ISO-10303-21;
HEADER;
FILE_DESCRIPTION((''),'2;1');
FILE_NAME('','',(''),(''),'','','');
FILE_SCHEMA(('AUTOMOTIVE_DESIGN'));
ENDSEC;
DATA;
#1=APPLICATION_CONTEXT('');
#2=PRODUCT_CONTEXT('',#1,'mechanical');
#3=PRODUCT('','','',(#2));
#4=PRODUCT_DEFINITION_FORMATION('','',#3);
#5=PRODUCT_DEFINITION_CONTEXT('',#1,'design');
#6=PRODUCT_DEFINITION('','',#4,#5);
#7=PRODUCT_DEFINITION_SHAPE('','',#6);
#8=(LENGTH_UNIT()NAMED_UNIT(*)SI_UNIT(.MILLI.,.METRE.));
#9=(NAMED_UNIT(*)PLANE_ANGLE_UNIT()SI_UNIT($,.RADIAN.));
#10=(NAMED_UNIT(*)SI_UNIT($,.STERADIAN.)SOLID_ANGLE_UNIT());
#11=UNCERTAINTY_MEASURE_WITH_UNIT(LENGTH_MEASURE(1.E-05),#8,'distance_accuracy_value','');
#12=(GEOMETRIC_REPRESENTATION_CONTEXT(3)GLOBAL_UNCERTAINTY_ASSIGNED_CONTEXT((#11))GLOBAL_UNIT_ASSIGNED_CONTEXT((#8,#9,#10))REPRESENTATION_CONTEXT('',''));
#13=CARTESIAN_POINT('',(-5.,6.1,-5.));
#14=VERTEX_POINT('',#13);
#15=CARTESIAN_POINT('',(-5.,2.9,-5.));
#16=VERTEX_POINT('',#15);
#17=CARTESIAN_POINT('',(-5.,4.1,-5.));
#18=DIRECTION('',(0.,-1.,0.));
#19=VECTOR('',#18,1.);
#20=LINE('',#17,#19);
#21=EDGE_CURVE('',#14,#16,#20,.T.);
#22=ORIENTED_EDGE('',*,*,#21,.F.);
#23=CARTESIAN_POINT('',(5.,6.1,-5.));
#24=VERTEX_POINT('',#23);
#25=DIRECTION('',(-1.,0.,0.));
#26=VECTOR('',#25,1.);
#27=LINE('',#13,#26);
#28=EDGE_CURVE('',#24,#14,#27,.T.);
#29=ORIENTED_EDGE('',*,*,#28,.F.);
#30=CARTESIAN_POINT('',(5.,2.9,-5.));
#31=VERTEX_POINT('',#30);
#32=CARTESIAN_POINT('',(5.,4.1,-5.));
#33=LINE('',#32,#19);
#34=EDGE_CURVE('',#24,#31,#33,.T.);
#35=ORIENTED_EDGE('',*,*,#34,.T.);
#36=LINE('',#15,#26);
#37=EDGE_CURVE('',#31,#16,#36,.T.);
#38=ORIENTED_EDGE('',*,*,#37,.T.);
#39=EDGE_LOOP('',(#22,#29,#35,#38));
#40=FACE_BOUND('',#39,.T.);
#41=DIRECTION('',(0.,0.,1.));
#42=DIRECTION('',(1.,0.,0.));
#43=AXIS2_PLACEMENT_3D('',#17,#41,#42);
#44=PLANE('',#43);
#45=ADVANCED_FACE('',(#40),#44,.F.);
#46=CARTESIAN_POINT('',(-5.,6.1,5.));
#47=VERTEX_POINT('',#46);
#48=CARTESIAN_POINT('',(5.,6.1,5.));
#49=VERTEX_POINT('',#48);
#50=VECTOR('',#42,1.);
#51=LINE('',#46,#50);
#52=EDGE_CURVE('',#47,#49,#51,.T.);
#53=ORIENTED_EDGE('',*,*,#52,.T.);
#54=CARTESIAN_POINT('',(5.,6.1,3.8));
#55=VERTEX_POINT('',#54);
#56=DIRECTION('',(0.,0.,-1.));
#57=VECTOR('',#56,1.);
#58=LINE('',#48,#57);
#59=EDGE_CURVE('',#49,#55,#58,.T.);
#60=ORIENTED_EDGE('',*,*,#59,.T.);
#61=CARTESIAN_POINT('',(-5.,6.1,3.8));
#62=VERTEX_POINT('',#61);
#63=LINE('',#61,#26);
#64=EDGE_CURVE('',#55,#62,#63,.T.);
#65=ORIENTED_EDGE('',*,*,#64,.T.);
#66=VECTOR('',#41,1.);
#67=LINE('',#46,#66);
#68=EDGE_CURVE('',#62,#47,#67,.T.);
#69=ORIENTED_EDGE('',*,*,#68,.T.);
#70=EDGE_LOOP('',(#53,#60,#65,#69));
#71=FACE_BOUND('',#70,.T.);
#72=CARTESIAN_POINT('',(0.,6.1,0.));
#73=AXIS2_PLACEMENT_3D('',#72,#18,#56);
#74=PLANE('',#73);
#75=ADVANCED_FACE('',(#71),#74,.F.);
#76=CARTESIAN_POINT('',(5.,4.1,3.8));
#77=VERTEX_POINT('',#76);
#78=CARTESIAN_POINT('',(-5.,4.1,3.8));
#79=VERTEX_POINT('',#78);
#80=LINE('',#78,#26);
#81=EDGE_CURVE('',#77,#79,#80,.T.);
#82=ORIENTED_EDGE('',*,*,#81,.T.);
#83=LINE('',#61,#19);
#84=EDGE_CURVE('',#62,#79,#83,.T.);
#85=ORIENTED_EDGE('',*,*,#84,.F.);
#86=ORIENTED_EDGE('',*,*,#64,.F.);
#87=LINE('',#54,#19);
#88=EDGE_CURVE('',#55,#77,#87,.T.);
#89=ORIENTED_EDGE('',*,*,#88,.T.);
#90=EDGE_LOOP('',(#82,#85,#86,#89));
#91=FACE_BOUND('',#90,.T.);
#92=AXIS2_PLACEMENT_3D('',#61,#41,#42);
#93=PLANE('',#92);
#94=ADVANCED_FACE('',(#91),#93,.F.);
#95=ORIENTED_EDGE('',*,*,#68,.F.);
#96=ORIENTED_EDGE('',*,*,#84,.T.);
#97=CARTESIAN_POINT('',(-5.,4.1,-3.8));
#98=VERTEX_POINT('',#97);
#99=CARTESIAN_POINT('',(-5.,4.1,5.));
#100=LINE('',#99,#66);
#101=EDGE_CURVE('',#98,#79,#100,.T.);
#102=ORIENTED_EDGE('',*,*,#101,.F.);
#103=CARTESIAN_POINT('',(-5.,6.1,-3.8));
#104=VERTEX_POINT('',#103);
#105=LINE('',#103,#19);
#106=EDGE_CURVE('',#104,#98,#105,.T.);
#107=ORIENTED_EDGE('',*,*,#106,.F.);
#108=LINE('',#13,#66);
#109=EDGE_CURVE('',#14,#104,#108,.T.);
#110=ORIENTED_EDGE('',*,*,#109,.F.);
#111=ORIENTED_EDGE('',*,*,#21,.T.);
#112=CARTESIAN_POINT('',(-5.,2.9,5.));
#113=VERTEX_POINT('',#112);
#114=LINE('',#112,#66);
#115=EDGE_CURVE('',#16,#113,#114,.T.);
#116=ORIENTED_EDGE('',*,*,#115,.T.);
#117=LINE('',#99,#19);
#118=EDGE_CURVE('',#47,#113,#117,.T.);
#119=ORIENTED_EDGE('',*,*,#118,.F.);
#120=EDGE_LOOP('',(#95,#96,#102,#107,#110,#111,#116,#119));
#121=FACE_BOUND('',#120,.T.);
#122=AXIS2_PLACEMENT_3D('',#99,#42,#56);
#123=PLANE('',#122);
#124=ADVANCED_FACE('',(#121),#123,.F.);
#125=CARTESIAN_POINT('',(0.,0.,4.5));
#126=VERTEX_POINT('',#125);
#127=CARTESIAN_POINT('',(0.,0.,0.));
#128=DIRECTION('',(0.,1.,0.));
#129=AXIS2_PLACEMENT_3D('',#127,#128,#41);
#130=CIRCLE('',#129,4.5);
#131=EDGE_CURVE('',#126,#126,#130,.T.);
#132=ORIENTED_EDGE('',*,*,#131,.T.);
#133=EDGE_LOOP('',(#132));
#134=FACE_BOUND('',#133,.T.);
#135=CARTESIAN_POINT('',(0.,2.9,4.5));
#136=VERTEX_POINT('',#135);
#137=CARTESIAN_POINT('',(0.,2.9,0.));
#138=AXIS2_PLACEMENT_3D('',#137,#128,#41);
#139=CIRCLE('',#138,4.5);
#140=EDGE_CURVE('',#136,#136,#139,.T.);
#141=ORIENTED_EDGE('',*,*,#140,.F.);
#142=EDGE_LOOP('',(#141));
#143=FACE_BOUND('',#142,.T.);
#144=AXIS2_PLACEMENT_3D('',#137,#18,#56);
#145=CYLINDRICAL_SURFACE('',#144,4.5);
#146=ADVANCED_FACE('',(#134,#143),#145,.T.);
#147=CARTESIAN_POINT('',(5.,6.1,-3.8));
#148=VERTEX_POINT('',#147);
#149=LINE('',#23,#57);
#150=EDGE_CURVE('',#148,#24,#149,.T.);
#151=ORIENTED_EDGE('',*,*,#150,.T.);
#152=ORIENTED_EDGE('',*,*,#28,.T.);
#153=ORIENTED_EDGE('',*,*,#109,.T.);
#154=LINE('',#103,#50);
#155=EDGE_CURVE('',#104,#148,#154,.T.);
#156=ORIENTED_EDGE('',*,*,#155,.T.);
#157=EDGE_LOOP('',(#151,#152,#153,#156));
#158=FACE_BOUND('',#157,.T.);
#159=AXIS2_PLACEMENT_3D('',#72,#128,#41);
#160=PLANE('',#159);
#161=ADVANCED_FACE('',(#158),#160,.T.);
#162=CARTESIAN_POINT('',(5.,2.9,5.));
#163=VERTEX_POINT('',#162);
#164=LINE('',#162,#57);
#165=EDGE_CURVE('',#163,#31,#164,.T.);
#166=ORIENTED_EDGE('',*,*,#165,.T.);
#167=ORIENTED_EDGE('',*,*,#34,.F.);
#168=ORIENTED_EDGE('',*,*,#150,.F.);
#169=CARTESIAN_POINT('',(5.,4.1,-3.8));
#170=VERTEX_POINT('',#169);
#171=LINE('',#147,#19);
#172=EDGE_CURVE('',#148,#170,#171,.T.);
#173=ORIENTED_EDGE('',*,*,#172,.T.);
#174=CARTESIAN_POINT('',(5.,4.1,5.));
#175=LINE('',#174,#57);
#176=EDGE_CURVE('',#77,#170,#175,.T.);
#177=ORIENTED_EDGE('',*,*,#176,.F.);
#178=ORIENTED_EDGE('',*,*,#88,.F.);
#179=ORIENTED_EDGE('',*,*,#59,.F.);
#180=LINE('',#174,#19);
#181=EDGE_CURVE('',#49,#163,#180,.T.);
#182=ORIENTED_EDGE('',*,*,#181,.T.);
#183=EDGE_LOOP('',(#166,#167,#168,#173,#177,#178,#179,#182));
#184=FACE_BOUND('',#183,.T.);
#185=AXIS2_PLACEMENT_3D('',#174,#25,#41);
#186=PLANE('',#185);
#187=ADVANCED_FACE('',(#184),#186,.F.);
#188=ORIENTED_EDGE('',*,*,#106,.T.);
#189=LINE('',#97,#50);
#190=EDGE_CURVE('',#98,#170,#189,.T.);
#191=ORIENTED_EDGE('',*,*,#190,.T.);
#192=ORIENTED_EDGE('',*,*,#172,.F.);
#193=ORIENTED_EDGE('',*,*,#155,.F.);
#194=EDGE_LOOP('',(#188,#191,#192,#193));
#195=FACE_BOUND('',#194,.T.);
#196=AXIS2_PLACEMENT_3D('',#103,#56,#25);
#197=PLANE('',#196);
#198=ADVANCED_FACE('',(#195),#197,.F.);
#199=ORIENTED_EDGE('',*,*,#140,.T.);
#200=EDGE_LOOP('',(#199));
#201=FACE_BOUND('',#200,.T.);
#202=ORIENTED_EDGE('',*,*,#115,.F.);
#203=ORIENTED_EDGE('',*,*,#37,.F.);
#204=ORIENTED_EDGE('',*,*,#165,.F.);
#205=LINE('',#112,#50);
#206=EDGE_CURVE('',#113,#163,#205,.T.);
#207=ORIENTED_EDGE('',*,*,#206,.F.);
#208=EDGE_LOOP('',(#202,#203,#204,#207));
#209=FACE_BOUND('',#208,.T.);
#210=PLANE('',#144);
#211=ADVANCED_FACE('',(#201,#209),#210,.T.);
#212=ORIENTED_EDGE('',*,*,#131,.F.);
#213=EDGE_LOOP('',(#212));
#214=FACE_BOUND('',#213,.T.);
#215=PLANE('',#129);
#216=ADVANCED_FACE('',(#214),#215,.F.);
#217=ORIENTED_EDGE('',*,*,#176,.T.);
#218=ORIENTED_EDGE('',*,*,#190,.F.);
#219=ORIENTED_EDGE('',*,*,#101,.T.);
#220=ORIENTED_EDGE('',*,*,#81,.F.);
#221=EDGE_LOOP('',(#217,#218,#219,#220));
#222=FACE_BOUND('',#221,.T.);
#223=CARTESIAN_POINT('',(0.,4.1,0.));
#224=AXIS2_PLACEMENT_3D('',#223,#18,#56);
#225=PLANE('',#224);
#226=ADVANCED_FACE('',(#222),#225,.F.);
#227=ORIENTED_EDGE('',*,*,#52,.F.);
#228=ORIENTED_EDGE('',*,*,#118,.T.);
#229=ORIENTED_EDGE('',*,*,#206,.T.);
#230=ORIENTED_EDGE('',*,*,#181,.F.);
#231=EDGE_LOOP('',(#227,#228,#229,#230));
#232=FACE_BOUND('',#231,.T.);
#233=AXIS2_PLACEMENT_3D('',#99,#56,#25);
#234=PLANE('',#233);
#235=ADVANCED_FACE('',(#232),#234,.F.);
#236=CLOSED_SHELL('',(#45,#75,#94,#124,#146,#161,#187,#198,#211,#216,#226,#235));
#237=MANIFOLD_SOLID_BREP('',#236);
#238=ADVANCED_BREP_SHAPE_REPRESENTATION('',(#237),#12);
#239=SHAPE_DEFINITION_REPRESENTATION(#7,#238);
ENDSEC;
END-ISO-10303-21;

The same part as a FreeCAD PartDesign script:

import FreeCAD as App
import Part
import Sketcher
from FreeCAD import Vector

doc = App.newDocument("Part")
body = doc.addObject("PartDesign::Body", "Body")

# Sketch on XZ plane
sketch1 = body.newObject("Sketcher::SketchObject", "Sketch")
sketch1.AttachmentSupport = (doc.getObject("XZ_Plane"), [""])
sketch1.MapMode = "FlatFace"
sketch1.addGeometry(Part.Circle(Vector(0, 0, 0), Vector(0, 0, 1), 4.5), False)
sketch1.addConstraint(Sketcher.Constraint("Coincident", 0, 3, -1, 1))
sketch1.addConstraint(Sketcher.Constraint("Diameter", 0, 9.0))
pad1 = body.newObject("PartDesign::Pad", "Pad")
pad1.Profile = sketch1
pad1.Length = 2.9
pad1.Reversed = True

# Sketch on XZ plane
sketch2 = body.newObject("Sketcher::SketchObject", "Sketch001")
sketch2.AttachmentSupport = (doc.getObject("XZ_Plane"), [""])
sketch2.MapMode = "FlatFace"
sketch2.AttachmentOffset = App.Placement(Vector(0, 0, -2.9), App.Rotation())
sketch2.addGeometry(Part.LineSegment(Vector(-5, -5, 0), Vector(-5, 5, 0)), False)
sketch2.addGeometry(Part.LineSegment(Vector(-5, 5, 0), Vector(5, 5, 0)), False)
sketch2.addGeometry(Part.LineSegment(Vector(5, 5, 0), Vector(5, -5, 0)), False)
sketch2.addGeometry(Part.LineSegment(Vector(5, -5, 0), Vector(-5, -5, 0)), False)
sketch2.addConstraint(Sketcher.Constraint("Coincident", 0, 2, 1, 1))
sketch2.addConstraint(Sketcher.Constraint("Coincident", 1, 2, 2, 1))
sketch2.addConstraint(Sketcher.Constraint("Coincident", 2, 2, 3, 1))
sketch2.addConstraint(Sketcher.Constraint("Coincident", 3, 2, 0, 1))
sketch2.addConstraint(Sketcher.Constraint("Vertical", 0))
sketch2.addConstraint(Sketcher.Constraint("Horizontal", 1))
sketch2.addConstraint(Sketcher.Constraint("Vertical", 2))
sketch2.addConstraint(Sketcher.Constraint("Horizontal", 3))
sketch2.addConstraint(Sketcher.Constraint("Symmetric", 0, 2, 2, 2, -1, 1))
sketch2.addConstraint(Sketcher.Constraint("Equal", 3, 0))
sketch2.addConstraint(Sketcher.Constraint("DistanceX", 1, 1, 1, 2, 10.0))
pad2 = body.newObject("PartDesign::Pad", "Pad001")
pad2.Profile = sketch2
pad2.Length = 1.2
pad2.Reversed = True

# Sketch on XZ plane
sketch3 = body.newObject("Sketcher::SketchObject", "Sketch002")
sketch3.AttachmentSupport = (doc.getObject("XZ_Plane"), [""])
sketch3.MapMode = "FlatFace"
sketch3.AttachmentOffset = App.Placement(Vector(0, 0, -4.1), App.Rotation())
sketch3.addGeometry(Part.LineSegment(Vector(-5, -5, 0), Vector(-5, -3.8, 0)), False)
sketch3.addGeometry(Part.LineSegment(Vector(-5, -3.8, 0), Vector(5, -3.8, 0)), False)
sketch3.addGeometry(Part.LineSegment(Vector(5, -3.8, 0), Vector(5, -5, 0)), False)
sketch3.addGeometry(Part.LineSegment(Vector(5, -5, 0), Vector(-5, -5, 0)), False)
sketch3.addGeometry(Part.LineSegment(Vector(-5, 3.8, 0), Vector(-5, 5, 0)), False)
sketch3.addGeometry(Part.LineSegment(Vector(-5, 5, 0), Vector(5, 5, 0)), False)
sketch3.addGeometry(Part.LineSegment(Vector(5, 5, 0), Vector(5, 3.8, 0)), False)
sketch3.addGeometry(Part.LineSegment(Vector(5, 3.8, 0), Vector(-5, 3.8, 0)), False)
sketch3.addConstraint(Sketcher.Constraint("Coincident", 0, 2, 1, 1))
sketch3.addConstraint(Sketcher.Constraint("Coincident", 1, 2, 2, 1))
sketch3.addConstraint(Sketcher.Constraint("Coincident", 2, 2, 3, 1))
sketch3.addConstraint(Sketcher.Constraint("Coincident", 3, 2, 0, 1))
sketch3.addConstraint(Sketcher.Constraint("Coincident", 4, 2, 5, 1))
sketch3.addConstraint(Sketcher.Constraint("Coincident", 5, 2, 6, 1))
sketch3.addConstraint(Sketcher.Constraint("Coincident", 6, 2, 7, 1))
sketch3.addConstraint(Sketcher.Constraint("Coincident", 7, 2, 4, 1))
sketch3.addConstraint(Sketcher.Constraint("Vertical", 0))
sketch3.addConstraint(Sketcher.Constraint("Horizontal", 1))
sketch3.addConstraint(Sketcher.Constraint("Vertical", 2))
sketch3.addConstraint(Sketcher.Constraint("Horizontal", 3))
sketch3.addConstraint(Sketcher.Constraint("Vertical", 4))
sketch3.addConstraint(Sketcher.Constraint("Horizontal", 5))
sketch3.addConstraint(Sketcher.Constraint("Vertical", 6))
sketch3.addConstraint(Sketcher.Constraint("Horizontal", 7))
sketch3.addConstraint(Sketcher.Constraint("Symmetric", 2, 2, 4, 2, -1, 1))
sketch3.addConstraint(Sketcher.Constraint("Symmetric", 0, 2, 6, 2, -1, 1))
sketch3.addConstraint(Sketcher.Constraint("Vertical", 3, 2, 4, 2))
sketch3.addConstraint(Sketcher.Constraint("DistanceX", 1, 1, 1, 2, 10.0))
sketch3.addConstraint(Sketcher.Constraint("DistanceY", 0, 1, 0, 2, 1.2))
sketch3.addConstraint(Sketcher.Constraint("DistanceY", 2, 2, -1, 1, 5.0))
pad3 = body.newObject("PartDesign::Pad", "Pad002")
pad3.Profile = sketch3
pad3.Length = 2
pad3.Reversed = True

doc.recompute()
